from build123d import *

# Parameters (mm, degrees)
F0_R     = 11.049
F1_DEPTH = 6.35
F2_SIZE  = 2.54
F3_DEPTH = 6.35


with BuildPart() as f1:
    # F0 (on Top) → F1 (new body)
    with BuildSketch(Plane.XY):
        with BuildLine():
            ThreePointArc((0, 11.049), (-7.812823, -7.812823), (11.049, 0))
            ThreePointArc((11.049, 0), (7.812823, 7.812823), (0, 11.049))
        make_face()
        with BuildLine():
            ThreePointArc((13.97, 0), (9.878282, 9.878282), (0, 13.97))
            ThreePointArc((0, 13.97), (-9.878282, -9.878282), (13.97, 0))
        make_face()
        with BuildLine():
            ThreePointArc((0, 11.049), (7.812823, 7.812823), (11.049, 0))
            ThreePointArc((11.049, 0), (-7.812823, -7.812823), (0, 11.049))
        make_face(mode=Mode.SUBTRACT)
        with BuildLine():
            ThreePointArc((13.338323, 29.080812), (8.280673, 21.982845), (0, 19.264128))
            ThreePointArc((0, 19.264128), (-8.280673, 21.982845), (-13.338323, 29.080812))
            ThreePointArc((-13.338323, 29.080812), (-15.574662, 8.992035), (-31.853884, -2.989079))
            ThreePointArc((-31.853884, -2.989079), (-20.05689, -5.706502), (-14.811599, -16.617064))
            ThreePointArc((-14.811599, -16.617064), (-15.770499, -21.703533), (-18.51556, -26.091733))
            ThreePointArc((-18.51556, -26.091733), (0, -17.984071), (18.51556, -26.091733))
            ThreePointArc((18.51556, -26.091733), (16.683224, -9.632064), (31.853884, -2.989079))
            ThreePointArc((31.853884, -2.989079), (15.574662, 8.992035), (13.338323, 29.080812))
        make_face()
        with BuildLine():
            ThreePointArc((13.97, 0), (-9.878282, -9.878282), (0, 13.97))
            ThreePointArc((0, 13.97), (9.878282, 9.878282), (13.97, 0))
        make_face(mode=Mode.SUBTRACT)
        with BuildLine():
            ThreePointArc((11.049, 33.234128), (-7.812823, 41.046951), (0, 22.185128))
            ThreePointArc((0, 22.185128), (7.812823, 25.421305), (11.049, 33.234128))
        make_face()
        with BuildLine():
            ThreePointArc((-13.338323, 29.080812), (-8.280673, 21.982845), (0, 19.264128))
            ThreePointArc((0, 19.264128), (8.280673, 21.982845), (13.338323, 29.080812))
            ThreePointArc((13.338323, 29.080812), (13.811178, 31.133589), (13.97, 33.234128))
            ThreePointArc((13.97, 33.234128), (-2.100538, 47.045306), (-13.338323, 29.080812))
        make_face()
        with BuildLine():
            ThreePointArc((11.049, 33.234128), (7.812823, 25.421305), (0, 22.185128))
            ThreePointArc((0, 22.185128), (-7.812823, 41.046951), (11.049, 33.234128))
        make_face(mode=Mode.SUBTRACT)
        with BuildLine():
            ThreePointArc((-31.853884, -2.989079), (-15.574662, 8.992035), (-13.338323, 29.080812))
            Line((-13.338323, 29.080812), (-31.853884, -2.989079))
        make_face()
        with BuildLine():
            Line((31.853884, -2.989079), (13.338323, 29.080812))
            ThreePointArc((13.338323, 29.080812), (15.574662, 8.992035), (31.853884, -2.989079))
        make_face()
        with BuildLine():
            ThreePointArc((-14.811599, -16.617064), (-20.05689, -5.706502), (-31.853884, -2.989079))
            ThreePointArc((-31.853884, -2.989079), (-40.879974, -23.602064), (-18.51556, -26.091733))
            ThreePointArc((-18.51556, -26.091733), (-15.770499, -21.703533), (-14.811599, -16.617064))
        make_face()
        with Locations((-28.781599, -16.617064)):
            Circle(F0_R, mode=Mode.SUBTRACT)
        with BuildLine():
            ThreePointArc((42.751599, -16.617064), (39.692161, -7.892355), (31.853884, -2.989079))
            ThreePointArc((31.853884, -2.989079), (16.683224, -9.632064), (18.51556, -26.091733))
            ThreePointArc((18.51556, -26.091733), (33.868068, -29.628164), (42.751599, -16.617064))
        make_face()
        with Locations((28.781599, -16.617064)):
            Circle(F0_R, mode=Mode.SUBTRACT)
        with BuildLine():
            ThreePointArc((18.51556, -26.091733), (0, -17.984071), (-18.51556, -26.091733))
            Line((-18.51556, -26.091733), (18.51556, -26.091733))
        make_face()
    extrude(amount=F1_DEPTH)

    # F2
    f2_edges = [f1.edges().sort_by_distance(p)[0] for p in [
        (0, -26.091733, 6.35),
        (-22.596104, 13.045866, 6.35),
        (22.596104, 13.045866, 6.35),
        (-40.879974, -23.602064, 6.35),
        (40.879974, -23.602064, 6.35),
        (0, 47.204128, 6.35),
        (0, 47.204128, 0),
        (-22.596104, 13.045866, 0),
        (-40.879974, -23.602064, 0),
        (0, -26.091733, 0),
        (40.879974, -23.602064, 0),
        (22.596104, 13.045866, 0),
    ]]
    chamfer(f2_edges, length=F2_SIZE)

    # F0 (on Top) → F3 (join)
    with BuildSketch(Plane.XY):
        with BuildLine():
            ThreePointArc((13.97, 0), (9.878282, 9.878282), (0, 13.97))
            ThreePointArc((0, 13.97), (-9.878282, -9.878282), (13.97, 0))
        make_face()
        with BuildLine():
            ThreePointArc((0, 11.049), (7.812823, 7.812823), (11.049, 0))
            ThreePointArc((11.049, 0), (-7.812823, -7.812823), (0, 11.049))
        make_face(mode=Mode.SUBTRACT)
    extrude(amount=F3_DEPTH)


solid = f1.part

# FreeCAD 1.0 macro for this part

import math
import FreeCAD as App
import Part
import Sketcher
Q = App.Units.Quantity


def edges_at(feature, points):
    """Names of the edges that pass closest to the given points."""
    edges = feature.Shape.Edges
    near = lambda p: min(range(len(edges)), key=lambda i: edges[i].distToShape(Part.Vertex(*p))[0])
    return sorted({f"Edge{near(p) + 1}" for p in points})

doc = App.newDocument("Part")
body = doc.addObject("PartDesign::Body", "Body")

sketch1 = body.newObject("Sketcher::SketchObject", "Sketch")
sketch1.AttachmentSupport = (doc.getObject("XY_Plane"), [""])
sketch1.MapMode = "FlatFace"
sketch1.addGeometry([
    Part.ArcOfCircle(Part.Circle(App.Vector(0, 33.2, 0), App.Vector(0, 0, 1), 14), math.radians(-17.3), math.radians(0)),
    Part.ArcOfCircle(Part.Circle(App.Vector(0, 33.2, 0), App.Vector(0, 0, 1), 14), math.radians(0), math.radians(197)),
    Part.LineSegment(App.Vector(-13.3, 29.1, 0), App.Vector(-31.9, -3, 0)),
    Part.ArcOfCircle(Part.Circle(App.Vector(-28.8, -16.6, 0), App.Vector(0, 0, 1), 14), math.radians(103), math.radians(317)),
    Part.LineSegment(App.Vector(-18.5, -26.1, 0), App.Vector(18.5, -26.1, 0)),
    Part.ArcOfCircle(Part.Circle(App.Vector(28.8, -16.6, 0), App.Vector(0, 0, 1), 14), math.radians(-137), math.radians(0)),
    Part.ArcOfCircle(Part.Circle(App.Vector(28.8, -16.6, 0), App.Vector(0, 0, 1), 14), math.radians(0), math.radians(77)),
    Part.LineSegment(App.Vector(31.9, -3, 0), App.Vector(13.3, 29.1, 0)),
    Part.Circle(App.Vector(-28.8, -16.6, 0), App.Vector(0, 0, 1), 11),
    Part.ArcOfCircle(Part.Circle(App.Vector(0, 0, 0), App.Vector(0, 0, 1), 14), math.radians(0), math.radians(90)),
    Part.ArcOfCircle(Part.Circle(App.Vector(0, 0, 0), App.Vector(0, 0, 1), 14), math.radians(90), math.radians(360)),
    Part.Circle(App.Vector(28.8, -16.6, 0), App.Vector(0, 0, 1), 11),
    Part.ArcOfCircle(Part.Circle(App.Vector(0, 33.2, 0), App.Vector(0, 0, 1), 11), math.radians(0), math.radians(270)),
    Part.ArcOfCircle(Part.Circle(App.Vector(0, 33.2, 0), App.Vector(0, 0, 1), 11), math.radians(-90), math.radians(0)),
], False)
sketch1.addConstraint([
    Sketcher.Constraint("Tangent", 0, 2, 1, 1),
    Sketcher.Constraint("Coincident", 1, 2, 2, 1),
    Sketcher.Constraint("Coincident", 2, 2, 3, 1),
    Sketcher.Constraint("Coincident", 3, 2, 4, 1),
    Sketcher.Constraint("Coincident", 4, 2, 5, 1),
    Sketcher.Constraint("Tangent", 5, 2, 6, 1),
    Sketcher.Constraint("Coincident", 6, 2, 7, 1),
    Sketcher.Constraint("Coincident", 7, 2, 0, 1),
    Sketcher.Constraint("Tangent", 9, 1, 10, 2),
    Sketcher.Constraint("Coincident", 10, 1, 9, 2),
    Sketcher.Constraint("Tangent", 12, 1, 13, 2),
    Sketcher.Constraint("Coincident", 13, 1, 12, 2),
    Sketcher.Constraint("Horizontal", 4),
    Sketcher.Constraint("Coincident", 9, 3, -1, 1),
    Sketcher.Constraint("Coincident", 8, 3, 3, 3),
    Sketcher.Constraint("Coincident", 11, 3, 5, 3),
    Sketcher.Constraint("Coincident", 12, 3, 1, 3),
    Sketcher.Constraint("Equal", 1, 3),
    Sketcher.Constraint("Equal", 3, 5),
    Sketcher.Constraint("Equal", 5, 6),
    Sketcher.Constraint("Equal", 6, 9),
    Sketcher.Constraint("Equal", 8, 11),
    Sketcher.Constraint("Equal", 11, 12),
    Sketcher.Constraint("Symmetric", 3, 3, 5, 3, -2),
    Sketcher.Constraint("Symmetric", 1, 2, 7, 2, -2),
    Sketcher.Constraint("PointOnObject", 1, 3, -2),
    Sketcher.Constraint("PointOnObject", 9, 1, -1),
    Sketcher.Constraint("PointOnObject", 10, 1, -2),
    Sketcher.Constraint("PointOnObject", 13, 1, -2),
    Sketcher.Constraint("Horizontal", 13, 3, 0, 2),
    Sketcher.Constraint("Horizontal", 11, 3, 5, 2),
    Sketcher.Constraint("Horizontal", 2, 2, 6, 2),
    Sketcher.Constraint("Horizontal", 0, 2, 12, 1),
    Sketcher.Constraint("Diameter", 8, Q("0.87 in")),
    Sketcher.Constraint("Radius", 1, Q("0.55 in")),
    Sketcher.Constraint("Angle", 2, Q("-120.000001 deg")),
    Sketcher.Constraint("DistanceX", 4, 1, 4, 2, Q("37.03112 mm")),
    Sketcher.Constraint("DistanceX", 3, 3, -1, 1, Q("28.781599 mm")),
    Sketcher.Constraint("Distance", 2, Q("37.031121 mm")),
    Sketcher.Constraint("DistanceY", -1, 1, 1, 3, Q("33.234128 mm")),
    Sketcher.Constraint("DistanceY", 2, 2, -1, 1, Q("2.989079 mm")),
])
pad1 = body.newObject("PartDesign::Pad", "Pad")
pad1.Profile = sketch1
pad1.Length = Q("0.25 in")
doc.recompute()

chamfer = body.newObject("PartDesign::Chamfer", "Chamfer")
chamfer.Base = (pad1, edges_at(pad1, [
    (0, -26.092, 6.35),
    (-22.596, 13.046, 6.35),
    (22.596, 13.046, 6.35),
    (-40.88, -23.602, 6.35),
    (33.868, -29.628, 6.35),
    (-2.101, 47.045, 6.35),
    (-2.101, 47.045, 0),
    (-22.596, 13.046, 0),
    (-40.88, -23.602, 0),
    (0, -26.092, 0),
    (33.868, -29.628, 0),
    (22.596, 13.046, 0),
]))
chamfer.Size = Q("0.1 in")

sketch2 = body.newObject("Sketcher::SketchObject", "Sketch001")
sketch2.AttachmentSupport = (doc.getObject("XY_Plane"), [""])
sketch2.MapMode = "FlatFace"
sketch2.addGeometry([
    Part.ArcOfCircle(Part.Circle(App.Vector(0, 0, 0), App.Vector(0, 0, 1), 14), math.radians(0), math.radians(90)),
    Part.ArcOfCircle(Part.Circle(App.Vector(0, 0, 0), App.Vector(0, 0, 1), 14), math.radians(90), math.radians(360)),
    Part.ArcOfCircle(Part.Circle(App.Vector(0, 0, 0), App.Vector(0, 0, 1), 11), math.radians(90), math.radians(360)),
    Part.ArcOfCircle(Part.Circle(App.Vector(0, 0, 0), App.Vector(0, 0, 1), 11), math.radians(0), math.radians(90)),
], False)
sketch2.addConstraint([
    Sketcher.Constraint("Tangent", 0, 1, 1, 2),
    Sketcher.Constraint("Coincident", 1, 1, 0, 2),
    Sketcher.Constraint("Tangent", 2, 1, 3, 2),
    Sketcher.Constraint("Coincident", 3, 1, 2, 2),
    Sketcher.Constraint("Coincident", 0, 3, -1, 1),
    Sketcher.Constraint("Coincident", 2, 3, -1, 1),
    Sketcher.Constraint("PointOnObject", 0, 1, -1),
    Sketcher.Constraint("PointOnObject", 1, 1, -2),
    Sketcher.Constraint("PointOnObject", 2, 1, -2),
    Sketcher.Constraint("PointOnObject", 3, 1, -1),
    Sketcher.Constraint("Radius", 0, Q("0.55 in")),
    Sketcher.Constraint("Radius", 2, Q("0.435 in")),
])
pad2 = body.newObject("PartDesign::Pad", "Pad001")
pad2.Profile = sketch2
pad2.Length = Q("0.25 in")

doc.recompute()
